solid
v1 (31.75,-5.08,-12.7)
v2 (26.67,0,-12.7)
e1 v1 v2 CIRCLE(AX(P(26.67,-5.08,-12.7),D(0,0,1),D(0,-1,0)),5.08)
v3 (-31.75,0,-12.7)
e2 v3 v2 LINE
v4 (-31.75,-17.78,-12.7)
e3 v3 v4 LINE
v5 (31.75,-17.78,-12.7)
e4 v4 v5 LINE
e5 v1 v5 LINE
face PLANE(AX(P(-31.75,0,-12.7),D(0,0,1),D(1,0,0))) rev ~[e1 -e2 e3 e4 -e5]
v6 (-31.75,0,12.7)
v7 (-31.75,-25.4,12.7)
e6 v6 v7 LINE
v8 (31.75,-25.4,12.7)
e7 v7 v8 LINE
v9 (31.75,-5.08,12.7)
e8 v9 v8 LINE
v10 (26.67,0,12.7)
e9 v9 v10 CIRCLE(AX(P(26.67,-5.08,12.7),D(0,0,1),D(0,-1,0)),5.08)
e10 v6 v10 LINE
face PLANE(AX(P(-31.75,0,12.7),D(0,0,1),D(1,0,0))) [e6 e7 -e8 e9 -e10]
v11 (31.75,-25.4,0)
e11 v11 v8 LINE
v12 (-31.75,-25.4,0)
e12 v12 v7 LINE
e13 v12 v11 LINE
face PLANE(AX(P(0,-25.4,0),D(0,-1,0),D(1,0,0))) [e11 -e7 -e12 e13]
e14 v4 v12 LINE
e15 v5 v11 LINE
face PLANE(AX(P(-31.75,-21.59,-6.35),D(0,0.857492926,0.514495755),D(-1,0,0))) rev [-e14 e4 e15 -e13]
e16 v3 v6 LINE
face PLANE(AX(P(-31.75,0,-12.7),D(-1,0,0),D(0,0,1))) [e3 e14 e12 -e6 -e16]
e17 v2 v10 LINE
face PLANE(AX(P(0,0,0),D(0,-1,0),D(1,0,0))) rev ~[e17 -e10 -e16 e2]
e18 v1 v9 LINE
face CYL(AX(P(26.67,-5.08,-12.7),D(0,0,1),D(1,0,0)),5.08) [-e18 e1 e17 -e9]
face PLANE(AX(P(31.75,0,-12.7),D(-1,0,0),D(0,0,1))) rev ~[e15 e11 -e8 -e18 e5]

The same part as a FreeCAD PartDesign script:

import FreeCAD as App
import Part
import Sketcher
Q = App.Units.Quantity


def edges_at(feature, points):
    """Names of the edges that pass closest to the given points."""
    edges = feature.Shape.Edges
    near = lambda p: min(range(len(edges)), key=lambda i: edges[i].distToShape(Part.Vertex(*p))[0])
    return sorted({f"Edge{near(p) + 1}" for p in points})


def add_polygon(sketch, points):
    """Adds a closed chain of lines whose ends are joined by coincident constraints."""
    first, n = sketch.GeometryCount, len(points)
    for a, b in zip(points, points[1:] + points[:1]):
        sketch.addGeometry(Part.LineSegment(App.Vector(*a, 0), App.Vector(*b, 0)), False)
    for i in range(n):
        sketch.addConstraint(Sketcher.Constraint("Coincident", first + i, 2, first + (i + 1) % n, 1))

doc = App.newDocument("Part")
body = doc.addObject("PartDesign::Body", "Body")

# Sketch on XZ plane
sketch1 = doc.addObject("Sketcher::SketchObject", "Sketch")
body.addObject(sketch1)
sketch1.AttachmentSupport = (doc.XZ_Plane, [""])
sketch1.MapMode = "FlatFace"
add_polygon(sketch1, [(-32, 13), (-32, -13), (32, -13), (32, 13)])  # lines 0-3
sketch1.addConstraint(Sketcher.Constraint("Vertical", 0))
sketch1.addConstraint(Sketcher.Constraint("Horizontal", 1))
sketch1.addConstraint(Sketcher.Constraint("Vertical", 2))
sketch1.addConstraint(Sketcher.Constraint("Horizontal", 3))
sketch1.addConstraint(Sketcher.Constraint("Symmetric", 0, 2, 2, 2, -1, 1))
sketch1.addConstraint(Sketcher.Constraint("DistanceY", 0, 2, 0, 1, Q("1 in")))
sketch1.addConstraint(Sketcher.Constraint("DistanceX", 1, 1, 1, 2, Q("2.5 in")))
pad1 = doc.addObject("PartDesign::Pad", "Pad")
body.addObject(pad1)
pad1.Profile = sketch1
pad1.Length = Q("1 in")
doc.recompute()

fillet = doc.addObject("PartDesign::Fillet", "Fillet")
body.addObject(fillet)
fillet.Base = (pad1, edges_at(pad1, [(31.75, 0, 0)]))
fillet.Radius = Q("0.2 in")
doc.recompute()

chamfer = doc.addObject("PartDesign::Chamfer", "Chamfer")
body.addObject(chamfer)
chamfer.Base = (fillet, edges_at(fillet, [(0, -25.4, -12.7)]))
chamfer.ChamferType = "Two distances"
chamfer.Size = Q("0.3 in")
chamfer.Size2 = Q("0.5 in")

doc.recompute()
